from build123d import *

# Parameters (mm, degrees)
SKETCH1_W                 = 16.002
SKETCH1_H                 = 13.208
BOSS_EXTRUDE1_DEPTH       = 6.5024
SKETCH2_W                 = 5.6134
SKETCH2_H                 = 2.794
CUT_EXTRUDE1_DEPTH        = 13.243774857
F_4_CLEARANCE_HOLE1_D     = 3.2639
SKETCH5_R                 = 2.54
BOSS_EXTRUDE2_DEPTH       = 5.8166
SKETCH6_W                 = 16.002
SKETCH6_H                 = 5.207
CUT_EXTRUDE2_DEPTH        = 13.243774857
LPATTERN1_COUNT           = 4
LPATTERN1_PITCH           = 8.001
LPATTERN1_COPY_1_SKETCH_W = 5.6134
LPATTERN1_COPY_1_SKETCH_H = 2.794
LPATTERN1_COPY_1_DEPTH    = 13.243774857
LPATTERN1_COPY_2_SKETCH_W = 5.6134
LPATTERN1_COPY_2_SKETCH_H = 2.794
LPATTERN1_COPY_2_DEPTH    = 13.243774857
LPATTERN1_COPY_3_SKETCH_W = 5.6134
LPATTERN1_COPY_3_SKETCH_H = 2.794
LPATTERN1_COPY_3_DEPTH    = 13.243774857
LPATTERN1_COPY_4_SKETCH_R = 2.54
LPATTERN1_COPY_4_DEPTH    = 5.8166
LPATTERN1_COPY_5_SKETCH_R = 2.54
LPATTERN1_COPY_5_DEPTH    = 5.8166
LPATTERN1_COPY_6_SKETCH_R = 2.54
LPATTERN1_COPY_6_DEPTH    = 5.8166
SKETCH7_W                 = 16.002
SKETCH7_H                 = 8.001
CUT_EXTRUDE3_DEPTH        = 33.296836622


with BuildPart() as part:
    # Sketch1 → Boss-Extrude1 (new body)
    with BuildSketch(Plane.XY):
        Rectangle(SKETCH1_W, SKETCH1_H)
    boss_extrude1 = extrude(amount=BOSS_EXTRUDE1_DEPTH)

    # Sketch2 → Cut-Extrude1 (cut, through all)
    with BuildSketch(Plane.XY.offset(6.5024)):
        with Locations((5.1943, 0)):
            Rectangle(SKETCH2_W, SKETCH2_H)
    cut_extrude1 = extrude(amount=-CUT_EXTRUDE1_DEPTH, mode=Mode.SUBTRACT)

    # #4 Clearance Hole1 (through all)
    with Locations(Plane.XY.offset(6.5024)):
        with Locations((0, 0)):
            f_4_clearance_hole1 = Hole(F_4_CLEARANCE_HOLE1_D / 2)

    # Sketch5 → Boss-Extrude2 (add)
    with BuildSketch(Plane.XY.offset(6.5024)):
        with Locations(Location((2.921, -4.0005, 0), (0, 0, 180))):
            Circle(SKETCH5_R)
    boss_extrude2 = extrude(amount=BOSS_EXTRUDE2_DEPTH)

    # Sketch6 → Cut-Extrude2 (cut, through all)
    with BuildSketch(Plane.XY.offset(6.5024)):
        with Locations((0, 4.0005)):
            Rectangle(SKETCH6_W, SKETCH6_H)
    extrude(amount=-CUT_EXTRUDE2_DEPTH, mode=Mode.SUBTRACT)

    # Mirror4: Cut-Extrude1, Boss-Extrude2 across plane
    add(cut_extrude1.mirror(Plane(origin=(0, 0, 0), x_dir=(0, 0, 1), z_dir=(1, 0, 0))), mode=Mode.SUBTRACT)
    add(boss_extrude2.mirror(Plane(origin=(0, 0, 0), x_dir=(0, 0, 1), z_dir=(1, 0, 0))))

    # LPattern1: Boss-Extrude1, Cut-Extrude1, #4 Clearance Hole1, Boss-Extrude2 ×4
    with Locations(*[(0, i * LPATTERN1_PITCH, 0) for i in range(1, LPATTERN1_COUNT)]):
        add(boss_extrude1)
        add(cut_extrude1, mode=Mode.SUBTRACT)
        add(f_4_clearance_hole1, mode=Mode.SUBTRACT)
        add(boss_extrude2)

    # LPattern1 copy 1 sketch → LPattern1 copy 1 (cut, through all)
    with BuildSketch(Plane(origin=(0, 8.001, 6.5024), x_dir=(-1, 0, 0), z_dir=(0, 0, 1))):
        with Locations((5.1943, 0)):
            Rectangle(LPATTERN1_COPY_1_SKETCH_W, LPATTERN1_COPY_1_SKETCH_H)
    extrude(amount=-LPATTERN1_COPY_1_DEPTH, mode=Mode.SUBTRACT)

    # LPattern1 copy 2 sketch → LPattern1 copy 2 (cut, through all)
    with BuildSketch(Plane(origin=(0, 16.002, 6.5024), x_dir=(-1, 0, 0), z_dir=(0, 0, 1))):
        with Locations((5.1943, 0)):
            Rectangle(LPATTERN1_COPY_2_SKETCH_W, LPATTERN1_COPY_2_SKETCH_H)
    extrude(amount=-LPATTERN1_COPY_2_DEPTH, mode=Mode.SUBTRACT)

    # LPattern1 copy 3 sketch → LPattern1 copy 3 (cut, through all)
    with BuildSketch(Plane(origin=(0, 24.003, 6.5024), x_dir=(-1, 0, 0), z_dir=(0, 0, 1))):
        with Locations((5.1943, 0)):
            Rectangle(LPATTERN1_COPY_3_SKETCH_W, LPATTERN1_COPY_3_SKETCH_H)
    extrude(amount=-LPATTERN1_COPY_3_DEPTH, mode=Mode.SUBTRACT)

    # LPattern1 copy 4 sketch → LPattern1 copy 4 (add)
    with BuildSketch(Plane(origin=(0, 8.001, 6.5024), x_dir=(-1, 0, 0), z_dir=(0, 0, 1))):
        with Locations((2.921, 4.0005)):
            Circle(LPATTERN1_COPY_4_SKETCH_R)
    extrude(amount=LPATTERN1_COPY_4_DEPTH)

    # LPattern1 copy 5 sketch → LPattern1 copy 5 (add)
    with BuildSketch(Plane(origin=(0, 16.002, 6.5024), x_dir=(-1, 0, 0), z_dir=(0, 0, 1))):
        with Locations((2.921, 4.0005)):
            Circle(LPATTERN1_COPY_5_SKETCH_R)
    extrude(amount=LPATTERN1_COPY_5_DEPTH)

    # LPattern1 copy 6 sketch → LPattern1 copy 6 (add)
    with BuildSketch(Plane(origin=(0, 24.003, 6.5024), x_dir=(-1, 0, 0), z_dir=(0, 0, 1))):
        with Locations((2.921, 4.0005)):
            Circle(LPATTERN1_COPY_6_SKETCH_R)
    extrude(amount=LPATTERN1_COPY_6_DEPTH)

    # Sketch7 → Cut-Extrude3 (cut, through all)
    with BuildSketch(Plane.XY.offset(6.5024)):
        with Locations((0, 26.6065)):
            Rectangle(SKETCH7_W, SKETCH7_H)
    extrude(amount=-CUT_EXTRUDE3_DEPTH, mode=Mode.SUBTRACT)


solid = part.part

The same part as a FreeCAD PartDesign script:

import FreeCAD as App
import Part
import Sketcher
from FreeCAD import Vector
Q = App.Units.Quantity


def add_polygon(sketch, points):
    """Adds a closed chain of lines whose ends are joined by coincident constraints."""
    first, n = sketch.GeometryCount, len(points)
    for a, b in zip(points, points[1:] + points[:1]):
        sketch.addGeometry(Part.LineSegment(App.Vector(*a, 0), App.Vector(*b, 0)), False)
    for i in range(n):
        sketch.addConstraint(Sketcher.Constraint("Coincident", first + i, 2, first + (i + 1) % n, 1))

doc = App.newDocument("Part")
body = doc.addObject("PartDesign::Body", "Body")

# Sketch on XY plane
sketch1 = body.newObject("Sketcher::SketchObject", "Sketch")
sketch1.AttachmentSupport = (doc.getObject("XY_Plane"), [""])
sketch1.MapMode = "FlatFace"
add_polygon(sketch1, [(-8, 7), (-8, -7), (8, -7), (8, 7)])  # lines 0-3
sketch1.addConstraint([
    Sketcher.Constraint("Vertical", 0),
    Sketcher.Constraint("Horizontal", 1),
    Sketcher.Constraint("Vertical", 2),
    Sketcher.Constraint("Horizontal", 3),
    Sketcher.Constraint("Symmetric", 0, 2, 2, 2, -1, 1),
    Sketcher.Constraint("DistanceX", 1, 1, 1, 2, Q("0.63 in")),
    Sketcher.Constraint("DistanceY", 0, 2, 0, 1, Q("0.52 in")),
])
pad1 = body.newObject("PartDesign::Pad", "Pad")
pad1.Profile = sketch1
pad1.Length = Q("0.256 in")

# Sketch on XY plane
sketch2 = body.newObject("Sketcher::SketchObject", "Sketch001")
sketch2.AttachmentSupport = (doc.getObject("XY_Plane"), [""])
sketch2.MapMode = "FlatFace"
sketch2.AttachmentOffset = App.Placement(Vector(0, 0, 0.256 * 25.4), App.Rotation())
add_polygon(sketch2, [(2.4, 1.4), (2.4, -1.4), (8, -1.4), (8, 1.4)])  # lines 0-3
sketch2.addConstraint([
    Sketcher.Constraint("Vertical", 0),
    Sketcher.Constraint("Horizontal", 1),
    Sketcher.Constraint("Vertical", 2),
    Sketcher.Constraint("Horizontal", 3),
    Sketcher.Constraint("DistanceY", 0, 2, 0, 1, Q("0.11 in")),
    Sketcher.Constraint("DistanceX", 1, 1, 1, 2, Q("0.221 in")),
    Sketcher.Constraint("DistanceX", -1, 1, 0, 2, Q("0.094 in")),
    Sketcher.Constraint("DistanceY", 0, 2, -1, 1, Q("0.055 in")),
])
pocket1 = body.newObject("PartDesign::Pocket", "Pocket")
pocket1.Profile = sketch2
pocket1.Type = "ThroughAll"

# Sketch on XY plane
sketch3 = body.newObject("Sketcher::SketchObject", "Sketch002")
sketch3.AttachmentSupport = (doc.getObject("XY_Plane"), [""])
sketch3.MapMode = "FlatFace"
sketch3.AttachmentOffset = App.Placement(Vector(0, 0, 0.256 * 25.4), App.Rotation())
sketch3.addGeometry(Part.Circle(Vector(0, 0, 0), Vector(0, 0, 1), 1.6), False)
sketch3.addConstraint([
    Sketcher.Constraint("Coincident", 0, 3, -1, 1),
    Sketcher.Constraint("Diameter", 0, Q("0.1285 in")),
])
doc.recompute()
hole = body.newObject("PartDesign::Hole", "Hole")
hole.Profile = sketch3
hole.ThreadType = "None"
hole.Diameter = Q("0.1285 in")
hole.DepthType = "ThroughAll"

# Sketch on XY plane
sketch4 = body.newObject("Sketcher::SketchObject", "Sketch003")
sketch4.AttachmentSupport = (doc.getObject("XY_Plane"), [""])
sketch4.MapMode = "FlatFace"
sketch4.AttachmentOffset = App.Placement(Vector(0, 0, 0.256 * 25.4), App.Rotation())
sketch4.addGeometry(Part.Circle(Vector(2.9, -4, 0), Vector(0, 0, 1), 2.5), False)
sketch4.addConstraint([
    Sketcher.Constraint("Diameter", 0, Q("0.2 in")),
    Sketcher.Constraint("DistanceX", -1, 1, 0, 3, Q("0.115 in")),
    Sketcher.Constraint("DistanceY", 0, 3, -1, 1, Q("0.1575 in")),
])
pad2 = body.newObject("PartDesign::Pad", "Pad001")
pad2.Profile = sketch4
pad2.Length = Q("0.229 in")

# Sketch on XY plane
sketch5 = body.newObject("Sketcher::SketchObject", "Sketch004")
sketch5.AttachmentSupport = (doc.getObject("XY_Plane"), [""])
sketch5.MapMode = "FlatFace"
sketch5.AttachmentOffset = App.Placement(Vector(0, 0, 0.256 * 25.4), App.Rotation())
add_polygon(sketch5, [(-8, 7), (-8, 1), (8, 1), (8, 7)])  # lines 0-3
sketch5.addConstraint([
    Sketcher.Constraint("Vertical", 0),
    Sketcher.Constraint("Horizontal", 1),
    Sketcher.Constraint("Vertical", 2),
    Sketcher.Constraint("Horizontal", 3),
    Sketcher.Constraint("DistanceX", 1, 1, 1, 2, Q("0.63 in")),
    Sketcher.Constraint("DistanceY", 0, 2, 0, 1, Q("0.205 in")),
    Sketcher.Constraint("DistanceY", -1, 1, 2, 2, Q("0.26 in")),
    Sketcher.Constraint("DistanceX", 0, 2, -1, 1, Q("0.315 in")),
])
pocket2 = body.newObject("PartDesign::Pocket", "Pocket001")
pocket2.Profile = sketch5
pocket2.Type = "ThroughAll"
doc.recompute()

mirrored = body.newObject("PartDesign::Mirrored", "Mirrored")
mirrored.Originals = [pocket1, pad2]
mirrored.MirrorPlane = (doc.getObject("YZ_Plane"), [""])
body.Tip = mirrored
doc.recompute()

linearpattern = body.newObject("PartDesign::LinearPattern", "LinearPattern")
linearpattern.Originals = [pad1, pocket1, hole, pad2]
linearpattern.Direction = (doc.getObject("Y_Axis"), [""])
linearpattern.Mode = "offset"
linearpattern.Offset = Q("0.315 in")
linearpattern.Occurrences = 4
body.Tip = linearpattern

# Sketch on XY plane
sketch6 = body.newObject("Sketcher::SketchObject", "Sketch005")
sketch6.AttachmentSupport = (doc.getObject("XY_Plane"), [""])
sketch6.MapMode = "FlatFace"
sketch6.AttachmentOffset = App.Placement(Vector(0, 0, 0.256 * 25.4), App.Rotation())
add_polygon(sketch6, [(-2.4, 6.6), (-2.4, 9.4), (-8, 9.4), (-8, 6.6)])  # lines 0-3
sketch6.addConstraint([
    Sketcher.Constraint("Vertical", 0),
    Sketcher.Constraint("Horizontal", 1),
    Sketcher.Constraint("Vertical", 2),
    Sketcher.Constraint("Horizontal", 3),
    Sketcher.Constraint("DistanceY", 0, 1, 0, 2, Q("0.11 in")),
    Sketcher.Constraint("DistanceX", 1, 2, 1, 1, Q("0.221 in")),
    Sketcher.Constraint("DistanceY", -1, 1, 0, 2, Q("0.37 in")),
    Sketcher.Constraint("DistanceX", 0, 2, -1, 1, Q("0.094 in")),
])
pocket3 = body.newObject("PartDesign::Pocket", "Pocket002")
pocket3.Profile = sketch6
pocket3.Type = "ThroughAll"

# Sketch on XY plane
sketch7 = body.newObject("Sketcher::SketchObject", "Sketch006")
sketch7.AttachmentSupport = (doc.getObject("XY_Plane"), [""])
sketch7.MapMode = "FlatFace"
sketch7.AttachmentOffset = App.Placement(Vector(0, 0, 0.256 * 25.4), App.Rotation())
add_polygon(sketch7, [(-2.4, 14.6), (-2.4, 17.4), (-8, 17.4), (-8, 14.6)])  # lines 0-3
sketch7.addConstraint([
    Sketcher.Constraint("Vertical", 0),
    Sketcher.Constraint("Horizontal", 1),
    Sketcher.Constraint("Vertical", 2),
    Sketcher.Constraint("Horizontal", 3),
    Sketcher.Constraint("DistanceY", 0, 1, 0, 2, Q("0.11 in")),
    Sketcher.Constraint("DistanceX", 1, 2, 1, 1, Q("0.221 in")),
    Sketcher.Constraint("DistanceX", 0, 2, -1, 1, Q("0.094 in")),
    Sketcher.Constraint("DistanceY", -1, 1, 0, 2, Q("0.685 in")),
])
pocket4 = body.newObject("PartDesign::Pocket", "Pocket003")
pocket4.Profile = sketch7
pocket4.Type = "ThroughAll"

# Sketch on XY plane
sketch8 = body.newObject("Sketcher::SketchObject", "Sketch007")
sketch8.AttachmentSupport = (doc.getObject("XY_Plane"), [""])
sketch8.MapMode = "FlatFace"
sketch8.AttachmentOffset = App.Placement(Vector(0, 0, 0.256 * 25.4), App.Rotation())
add_polygon(sketch8, [(-2.4, 22.6), (-2.4, 25.4), (-8, 25.4), (-8, 22.6)])  # lines 0-3
sketch8.addConstraint([
    Sketcher.Constraint("Vertical", 0),
    Sketcher.Constraint("Horizontal", 1),
    Sketcher.Constraint("Vertical", 2),
    Sketcher.Constraint("Horizontal", 3),
    Sketcher.Constraint("DistanceY", -1, 1, 0, 2, Q("1 in")),
    Sketcher.Constraint("DistanceY", 0, 1, 0, 2, Q("0.11 in")),
    Sketcher.Constraint("DistanceX", 1, 2, 1, 1, Q("0.221 in")),
    Sketcher.Constraint("DistanceX", 0, 2, -1, 1, Q("0.094 in")),
])
pocket5 = body.newObject("PartDesign::Pocket", "Pocket004")
pocket5.Profile = sketch8
pocket5.Type = "ThroughAll"

# Sketch on XY plane
sketch9 = body.newObject("Sketcher::SketchObject", "Sketch008")
sketch9.AttachmentSupport = (doc.getObject("XY_Plane"), [""])
sketch9.MapMode = "FlatFace"
sketch9.AttachmentOffset = App.Placement(Vector(0, 0, 0.256 * 25.4), App.Rotation())
sketch9.addGeometry(Part.Circle(Vector(-2.9, 4, 0), Vector(0, 0, 1), 2.5), False)
sketch9.addConstraint([
    Sketcher.Constraint("Diameter", 0, Q("0.2 in")),
    Sketcher.Constraint("DistanceX", 0, 3, -1, 1, Q("0.115 in")),
    Sketcher.Constraint("DistanceY", -1, 1, 0, 3, Q("0.1575 in")),
])
pad3 = body.newObject("PartDesign::Pad", "Pad002")
pad3.Profile = sketch9
pad3.Length = Q("0.229 in")

# Sketch on XY plane
sketch10 = body.newObject("Sketcher::SketchObject", "Sketch009")
sketch10.AttachmentSupport = (doc.getObject("XY_Plane"), [""])
sketch10.MapMode = "FlatFace"
sketch10.AttachmentOffset = App.Placement(Vector(0, 0, 0.256 * 25.4), App.Rotation())
sketch10.addGeometry(Part.Circle(Vector(-2.9, 12, 0), Vector(0, 0, 1), 2.5), False)
sketch10.addConstraint([
    Sketcher.Constraint("Diameter", 0, Q("0.2 in")),
    Sketcher.Constraint("DistanceX", 0, 3, -1, 1, Q("0.115 in")),
    Sketcher.Constraint("DistanceY", -1, 1, 0, 3, Q("0.4725 in")),
])
pad4 = body.newObject("PartDesign::Pad", "Pad003")
pad4.Profile = sketch10
pad4.Length = Q("0.229 in")

# Sketch on XY plane
sketch11 = body.newObject("Sketcher::SketchObject", "Sketch010")
sketch11.AttachmentSupport = (doc.getObject("XY_Plane"), [""])
sketch11.MapMode = "FlatFace"
sketch11.AttachmentOffset = App.Placement(Vector(0, 0, 0.256 * 25.4), App.Rotation())
sketch11.addGeometry(Part.Circle(Vector(-2.9, 20, 0), Vector(0, 0, 1), 2.5), False)
sketch11.addConstraint([
    Sketcher.Constraint("Diameter", 0, Q("0.2 in")),
    Sketcher.Constraint("DistanceX", 0, 3, -1, 1, Q("0.115 in")),
    Sketcher.Constraint("DistanceY", -1, 1, 0, 3, Q("0.7875 in")),
])
pad5 = body.newObject("PartDesign::Pad", "Pad004")
pad5.Profile = sketch11
pad5.Length = Q("0.229 in")

# Sketch on XY plane
sketch12 = body.newObject("Sketcher::SketchObject", "Sketch011")
sketch12.AttachmentSupport = (doc.getObject("XY_Plane"), [""])
sketch12.MapMode = "FlatFace"
sketch12.AttachmentOffset = App.Placement(Vector(0, 0, 0.256 * 25.4), App.Rotation())
add_polygon(sketch12, [(-8, 31), (-8, 23), (8, 23), (8, 31)])  # lines 0-3
sketch12.addConstraint([
    Sketcher.Constraint("Vertical", 0),
    Sketcher.Constraint("Horizontal", 1),
    Sketcher.Constraint("Vertical", 2),
    Sketcher.Constraint("Horizontal", 3),
    Sketcher.Constraint("DistanceX", 1, 1, 1, 2, Q("0.63 in")),
    Sketcher.Constraint("DistanceY", 0, 2, 0, 1, Q("0.315 in")),
    Sketcher.Constraint("DistanceY", -1, 1, 0, 2, Q("0.89 in")),
    Sketcher.Constraint("DistanceX", 0, 2, -1, 1, Q("0.315 in")),
])
pocket6 = body.newObject("PartDesign::Pocket", "Pocket005")
pocket6.Profile = sketch12
pocket6.Type = "ThroughAll"

doc.recompute()
